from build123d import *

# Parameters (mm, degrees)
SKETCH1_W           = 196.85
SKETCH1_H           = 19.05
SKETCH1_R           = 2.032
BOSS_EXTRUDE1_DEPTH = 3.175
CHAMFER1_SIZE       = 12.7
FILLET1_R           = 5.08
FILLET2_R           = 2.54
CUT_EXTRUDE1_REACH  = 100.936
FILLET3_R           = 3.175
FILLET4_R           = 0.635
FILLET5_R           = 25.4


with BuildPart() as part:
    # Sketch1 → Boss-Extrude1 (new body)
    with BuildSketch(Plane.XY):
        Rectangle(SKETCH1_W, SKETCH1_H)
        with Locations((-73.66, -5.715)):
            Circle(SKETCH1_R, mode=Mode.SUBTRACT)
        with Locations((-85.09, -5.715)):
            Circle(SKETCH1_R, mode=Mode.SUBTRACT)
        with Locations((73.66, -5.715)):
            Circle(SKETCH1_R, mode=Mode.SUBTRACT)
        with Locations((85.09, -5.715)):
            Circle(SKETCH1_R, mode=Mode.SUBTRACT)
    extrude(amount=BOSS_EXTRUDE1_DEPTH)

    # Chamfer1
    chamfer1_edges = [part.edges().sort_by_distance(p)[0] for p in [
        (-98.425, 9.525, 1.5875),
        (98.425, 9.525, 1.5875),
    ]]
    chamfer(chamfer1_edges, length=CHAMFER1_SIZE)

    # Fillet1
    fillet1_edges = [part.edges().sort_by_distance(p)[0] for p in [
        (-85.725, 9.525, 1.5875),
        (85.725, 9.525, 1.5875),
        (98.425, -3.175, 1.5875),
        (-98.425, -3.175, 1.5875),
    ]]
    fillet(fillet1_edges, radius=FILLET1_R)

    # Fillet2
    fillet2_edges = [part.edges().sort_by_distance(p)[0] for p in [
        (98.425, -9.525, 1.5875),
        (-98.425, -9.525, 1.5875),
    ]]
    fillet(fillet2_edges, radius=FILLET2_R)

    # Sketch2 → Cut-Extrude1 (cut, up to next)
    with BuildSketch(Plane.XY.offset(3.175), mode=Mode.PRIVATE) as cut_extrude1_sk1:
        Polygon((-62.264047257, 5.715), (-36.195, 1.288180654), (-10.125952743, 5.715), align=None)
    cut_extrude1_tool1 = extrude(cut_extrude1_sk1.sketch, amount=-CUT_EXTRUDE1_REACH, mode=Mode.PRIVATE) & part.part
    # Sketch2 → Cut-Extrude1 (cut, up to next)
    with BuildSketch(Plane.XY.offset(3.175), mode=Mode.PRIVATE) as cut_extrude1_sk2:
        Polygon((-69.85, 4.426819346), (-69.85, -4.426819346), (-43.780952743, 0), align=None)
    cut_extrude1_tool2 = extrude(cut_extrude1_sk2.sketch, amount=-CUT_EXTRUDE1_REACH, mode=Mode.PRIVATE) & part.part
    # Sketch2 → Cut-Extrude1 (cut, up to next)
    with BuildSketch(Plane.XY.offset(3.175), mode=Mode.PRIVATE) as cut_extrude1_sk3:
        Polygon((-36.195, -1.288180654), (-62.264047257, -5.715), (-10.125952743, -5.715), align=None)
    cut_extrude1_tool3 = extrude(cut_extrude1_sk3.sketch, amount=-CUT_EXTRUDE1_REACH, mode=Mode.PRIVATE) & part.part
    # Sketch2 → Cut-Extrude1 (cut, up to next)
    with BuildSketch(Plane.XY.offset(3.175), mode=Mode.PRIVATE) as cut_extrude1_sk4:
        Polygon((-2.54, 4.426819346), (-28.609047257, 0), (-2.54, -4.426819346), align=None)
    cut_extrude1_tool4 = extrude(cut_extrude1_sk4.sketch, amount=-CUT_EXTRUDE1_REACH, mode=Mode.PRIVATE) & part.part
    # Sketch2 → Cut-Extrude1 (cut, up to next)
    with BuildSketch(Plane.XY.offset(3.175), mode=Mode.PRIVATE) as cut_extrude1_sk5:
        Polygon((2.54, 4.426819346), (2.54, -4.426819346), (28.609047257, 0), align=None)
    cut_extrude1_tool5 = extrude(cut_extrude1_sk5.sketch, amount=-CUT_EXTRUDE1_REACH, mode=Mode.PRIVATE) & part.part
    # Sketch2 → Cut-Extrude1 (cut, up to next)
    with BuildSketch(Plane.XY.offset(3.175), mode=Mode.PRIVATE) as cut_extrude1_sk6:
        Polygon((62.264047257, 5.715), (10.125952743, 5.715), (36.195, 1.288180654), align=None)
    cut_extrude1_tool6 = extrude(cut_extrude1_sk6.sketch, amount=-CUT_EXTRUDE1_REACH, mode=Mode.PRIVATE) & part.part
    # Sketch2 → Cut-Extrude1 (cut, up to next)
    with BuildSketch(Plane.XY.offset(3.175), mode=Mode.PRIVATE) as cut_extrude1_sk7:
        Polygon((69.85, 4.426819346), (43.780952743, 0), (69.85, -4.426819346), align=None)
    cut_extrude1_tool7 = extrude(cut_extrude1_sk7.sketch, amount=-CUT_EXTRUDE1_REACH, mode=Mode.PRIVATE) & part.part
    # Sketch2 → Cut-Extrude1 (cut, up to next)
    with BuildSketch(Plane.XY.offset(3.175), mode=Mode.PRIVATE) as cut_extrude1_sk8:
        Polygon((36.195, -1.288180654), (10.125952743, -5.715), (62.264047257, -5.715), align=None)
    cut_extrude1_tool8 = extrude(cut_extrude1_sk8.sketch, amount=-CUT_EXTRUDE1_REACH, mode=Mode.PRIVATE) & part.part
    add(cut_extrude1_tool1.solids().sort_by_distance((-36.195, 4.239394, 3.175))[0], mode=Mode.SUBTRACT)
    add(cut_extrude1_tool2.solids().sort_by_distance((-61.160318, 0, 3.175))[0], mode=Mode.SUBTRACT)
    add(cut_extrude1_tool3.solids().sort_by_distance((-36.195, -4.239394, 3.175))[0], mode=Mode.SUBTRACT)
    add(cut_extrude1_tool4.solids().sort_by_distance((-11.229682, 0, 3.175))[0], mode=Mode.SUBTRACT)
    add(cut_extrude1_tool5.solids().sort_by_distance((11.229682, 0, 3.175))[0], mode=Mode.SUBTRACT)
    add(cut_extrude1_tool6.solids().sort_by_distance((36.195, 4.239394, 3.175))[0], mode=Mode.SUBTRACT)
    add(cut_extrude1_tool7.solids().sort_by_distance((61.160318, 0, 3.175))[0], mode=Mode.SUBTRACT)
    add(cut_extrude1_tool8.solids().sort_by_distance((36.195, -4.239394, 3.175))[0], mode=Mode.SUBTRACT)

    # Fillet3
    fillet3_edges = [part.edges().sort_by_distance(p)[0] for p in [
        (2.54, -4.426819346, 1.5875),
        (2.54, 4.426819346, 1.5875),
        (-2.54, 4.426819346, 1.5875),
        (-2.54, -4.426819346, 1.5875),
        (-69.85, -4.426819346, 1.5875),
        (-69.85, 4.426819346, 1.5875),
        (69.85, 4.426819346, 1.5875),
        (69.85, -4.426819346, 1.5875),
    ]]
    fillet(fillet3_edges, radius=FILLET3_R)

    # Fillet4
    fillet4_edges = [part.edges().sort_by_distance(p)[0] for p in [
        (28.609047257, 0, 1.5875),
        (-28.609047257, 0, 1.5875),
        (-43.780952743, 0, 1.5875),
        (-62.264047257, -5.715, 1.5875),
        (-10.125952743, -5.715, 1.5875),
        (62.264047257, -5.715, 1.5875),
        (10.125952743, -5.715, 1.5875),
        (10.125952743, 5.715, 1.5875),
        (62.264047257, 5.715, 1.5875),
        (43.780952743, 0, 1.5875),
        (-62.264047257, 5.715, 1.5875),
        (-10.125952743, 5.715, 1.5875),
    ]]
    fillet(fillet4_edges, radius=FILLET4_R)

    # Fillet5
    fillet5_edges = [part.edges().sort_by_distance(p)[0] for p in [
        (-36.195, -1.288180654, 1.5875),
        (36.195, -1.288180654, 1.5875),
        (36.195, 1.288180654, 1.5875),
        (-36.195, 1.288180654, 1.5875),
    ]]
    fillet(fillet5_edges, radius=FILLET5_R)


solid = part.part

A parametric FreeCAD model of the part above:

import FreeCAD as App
import Part
import Sketcher

V = App.Vector
Q = App.Units.Quantity


def edges_at(feature, points):
    """Names of the edges that pass closest to the given points."""
    edges = feature.Shape.Edges
    near = lambda p: min(range(len(edges)), key=lambda i: edges[i].distToShape(Part.Vertex(*p))[0])
    return sorted({f"Edge{near(p) + 1}" for p in points})


def add_polygon(sketch, points):
    """Adds a closed chain of lines whose ends are joined by coincident constraints."""
    first, n = sketch.GeometryCount, len(points)
    for a, b in zip(points, points[1:] + points[:1]):
        sketch.addGeometry(Part.LineSegment(App.Vector(*a, 0), App.Vector(*b, 0)), False)
    for i in range(n):
        sketch.addConstraint(Sketcher.Constraint("Coincident", first + i, 2, first + (i + 1) % n, 1))

doc = App.newDocument("Part")
params = doc.addObject("Spreadsheet::Sheet", "Params")
for row, (alias, value) in enumerate([
    ("sketch1_diameter", "0.16 in"),
    ("sketch1_width", "7.75 in"),
    ("sketch1_height", "0.75 in"),
    ("pad1_length", "0.125 in"),
    ("chamfer_size", "0.5 in"),
    ("fillet_radius", "0.2 in"),
    ("fillet2_radius", "0.1 in"),
    ("fillet3_radius", "0.125 in"),
    ("fillet4_radius", "0.025 in"),
    ("fillet5_radius", "1 in"),
], start=1):
    params.set(f"A{row}", alias)
    params.set(f"B{row}", "=" + value)
    params.setAlias(f"B{row}", alias)

body = doc.addObject("PartDesign::Body", "Body")

sketch1 = body.newObject("Sketcher::SketchObject", "Sketch")
sketch1.AttachmentSupport = (doc.getObject("XY_Plane"), [""])
sketch1.MapMode = "FlatFace"
add_polygon(sketch1, [(-98.4, 9.5), (-98.4, -9.5), (98.4, -9.5), (98.4, 9.5)])
sketch1.addGeometry(Part.Circle(V(-85.1, -5.7, 0), V(0, 0, 1), 2), False)
sketch1.addGeometry(Part.Circle(V(-73.7, -5.7, 0), V(0, 0, 1), 2), False)
sketch1.addGeometry(Part.Circle(V(73.7, -5.7, 0), V(0, 0, 1), 2), False)
sketch1.addGeometry(Part.Circle(V(85.1, -5.7, 0), V(0, 0, 1), 2), False)
sketch1.addConstraint([
    Sketcher.Constraint("Vertical", 0),
    Sketcher.Constraint("Horizontal", 1),
    Sketcher.Constraint("Vertical", 2),
    Sketcher.Constraint("Horizontal", 3),
    Sketcher.Constraint("Equal", 4, 5),
    Sketcher.Constraint("Equal", 5, 6),
    Sketcher.Constraint("Equal", 6, 7),
    Sketcher.Constraint("Symmetric", 0, 2, 2, 2, -1, 1),
    Sketcher.Constraint("Symmetric", 5, 3, 6, 3, -2),
    Sketcher.Constraint("Symmetric", 4, 3, 7, 3, -2),
    Sketcher.Constraint("Horizontal", 4, 3, 5, 3),
    Sketcher.Constraint("Diameter", 4, Q("0.16 in")),
    Sketcher.Constraint("DistanceX", 1, 1, 1, 2, Q("7.75 in")),
    Sketcher.Constraint("DistanceY", 0, 2, 0, 1, Q("0.75 in")),
    Sketcher.Constraint("DistanceX", 5, 3, -1, 1, Q("2.9 in")),
    Sketcher.Constraint("DistanceX", 4, 3, 7, 3, Q("6.7 in")),
    Sketcher.Constraint("DistanceY", 7, 3, 2, 2, Q("0.6 in")),
])
sketch1.setExpression("Constraints[15]", "Params.sketch1_diameter")
sketch1.setExpression("Constraints[16]", "Params.sketch1_width")
sketch1.setExpression("Constraints[17]", "Params.sketch1_height")
pad1 = body.newObject("PartDesign::Pad", "Pad")
pad1.Profile = sketch1
pad1.setExpression("Length", "Params.pad1_length")
doc.recompute()

chamfer = body.newObject("PartDesign::Chamfer", "Chamfer")
chamfer.Base = (pad1, edges_at(pad1, [(-98.425, 9.525, 1.587), (98.425, 9.525, 1.587)]))
chamfer.setExpression("Size", "Params.chamfer_size")
doc.recompute()

fillet = body.newObject("PartDesign::Fillet", "Fillet")
fillet.Base = (chamfer, edges_at(chamfer, [
    (-85.725, 9.525, 1.587),
    (85.725, 9.525, 1.587),
    (98.425, -3.175, 1.587),
    (-98.425, -3.175, 1.587),
]))
fillet.setExpression("Radius", "Params.fillet_radius")
doc.recompute()

fillet2 = body.newObject("PartDesign::Fillet", "Fillet001")
fillet2.Base = (fillet, edges_at(fillet, [(98.425, -9.525, 1.587), (-98.425, -9.525, 1.587)]))
fillet2.setExpression("Radius", "Params.fillet2_radius")

sketch2 = body.newObject("Sketcher::SketchObject", "Sketch001")
sketch2.AttachmentSupport = (doc.getObject("XY_Plane"), [""])
sketch2.MapMode = "FlatFace"
sketch2.AttachmentOffset = App.Placement(V(0, 0, 0.125 * 25.4), App.Rotation())
add_polygon(sketch2, [(-62, 6), (-36, 1), (-10, 6)])
sketch2.addConstraint([
    Sketcher.Constraint("Horizontal", 2),
    Sketcher.Constraint("Equal", 0, 1),
    Sketcher.Constraint("DistanceX", 0, 2, -1, 1, Q("1.425 in")),
    Sketcher.Constraint("DistanceY", -1, 1, 1, 2, Q("0.225 in")),
    Sketcher.Constraint("Distance", 0, 26.442238),
    Sketcher.Constraint("DistanceX", 2, 2, 2, 1, 52.138095),
])
pocket1 = body.newObject("PartDesign::Pocket", "Pocket")
pocket1.Profile = sketch2
pocket1.Type = "UpToFirst"

sketch3 = body.newObject("Sketcher::SketchObject", "Sketch002")
sketch3.AttachmentSupport = (doc.getObject("XY_Plane"), [""])
sketch3.MapMode = "FlatFace"
sketch3.AttachmentOffset = App.Placement(V(0, 0, 0.125 * 25.4), App.Rotation())
add_polygon(sketch3, [(-70, 4), (-70, -4), (-44, 0)])
sketch3.addConstraint([
    Sketcher.Constraint("Vertical", 0),
    Sketcher.Constraint("PointOnObject", 1, 2, -1),
    Sketcher.Constraint("Equal", 1, 2),
    Sketcher.Constraint("DistanceX", 0, 2, -1, 1, Q("2.75 in")),
    Sketcher.Constraint("DistanceY", 0, 2, 0, 1, 8.853639),
    Sketcher.Constraint("Distance", 1, 26.442238),
])
pocket2 = body.newObject("PartDesign::Pocket", "Pocket001")
pocket2.Profile = sketch3
pocket2.Type = "UpToFirst"

sketch4 = body.newObject("Sketcher::SketchObject", "Sketch003")
sketch4.AttachmentSupport = (doc.getObject("XY_Plane"), [""])
sketch4.MapMode = "FlatFace"
sketch4.AttachmentOffset = App.Placement(V(0, 0, 0.125 * 25.4), App.Rotation())
add_polygon(sketch4, [(-36, -1), (-62, -6), (-10, -6)])
sketch4.addConstraint([
    Sketcher.Constraint("Horizontal", 1),
    Sketcher.Constraint("Equal", 0, 2),
    Sketcher.Constraint("DistanceY", 0, 2, -1, 1, Q("0.225 in")),
    Sketcher.Constraint("DistanceX", 2, 2, -1, 1, Q("1.425 in")),
    Sketcher.Constraint("Distance", 0, 26.442238),
    Sketcher.Constraint("DistanceX", 1, 1, 1, 2, 52.138095),
])
pocket3 = body.newObject("PartDesign::Pocket", "Pocket002")
pocket3.Profile = sketch4
pocket3.Type = "UpToFirst"

sketch5 = body.newObject("Sketcher::SketchObject", "Sketch004")
sketch5.AttachmentSupport = (doc.getObject("XY_Plane"), [""])
sketch5.MapMode = "FlatFace"
sketch5.AttachmentOffset = App.Placement(V(0, 0, 0.125 * 25.4), App.Rotation())
add_polygon(sketch5, [(-3, 4), (-29, 0), (-3, -4)])
sketch5.addConstraint([
    Sketcher.Constraint("Vertical", 2),
    Sketcher.Constraint("PointOnObject", 0, 2, -1),
    Sketcher.Constraint("Equal", 0, 1),
    Sketcher.Constraint("DistanceX", 1, 2, -1, 1, Q("0.1 in")),
    Sketcher.Constraint("DistanceY", 2, 1, 2, 2, 8.853639),
    Sketcher.Constraint("Distance", 0, 26.442238),
])
pocket4 = body.newObject("PartDesign::Pocket", "Pocket003")
pocket4.Profile = sketch5
pocket4.Type = "UpToFirst"

sketch6 = body.newObject("Sketcher::SketchObject", "Sketch005")
sketch6.AttachmentSupport = (doc.getObject("XY_Plane"), [""])
sketch6.MapMode = "FlatFace"
sketch6.AttachmentOffset = App.Placement(V(0, 0, 0.125 * 25.4), App.Rotation())
add_polygon(sketch6, [(3, 4), (3, -4), (29, 0)])
sketch6.addConstraint([
    Sketcher.Constraint("Vertical", 0),
    Sketcher.Constraint("PointOnObject", 1, 2, -1),
    Sketcher.Constraint("Equal", 1, 2),
    Sketcher.Constraint("DistanceX", -1, 1, 0, 2, Q("0.1 in")),
    Sketcher.Constraint("DistanceY", 0, 2, 0, 1, 8.853639),
    Sketcher.Constraint("Distance", 1, 26.442238),
])
pocket5 = body.newObject("PartDesign::Pocket", "Pocket004")
pocket5.Profile = sketch6
pocket5.Type = "UpToFirst"

sketch7 = body.newObject("Sketcher::SketchObject", "Sketch006")
sketch7.AttachmentSupport = (doc.getObject("XY_Plane"), [""])
sketch7.MapMode = "FlatFace"
sketch7.AttachmentOffset = App.Placement(V(0, 0, 0.125 * 25.4), App.Rotation())
add_polygon(sketch7, [(62, 6), (10, 6), (36, 1)])
sketch7.addConstraint([
    Sketcher.Constraint("Horizontal", 0),
    Sketcher.Constraint("Equal", 1, 2),
    Sketcher.Constraint("DistanceY", -1, 1, 0, 2, Q("0.225 in")),
    Sketcher.Constraint("DistanceX", -1, 1, 1, 2, Q("1.425 in")),
    Sketcher.Constraint("Distance", 1, 26.442238),
    Sketcher.Constraint("DistanceX", 0, 2, 0, 1, 52.138095),
])
pocket6 = body.newObject("PartDesign::Pocket", "Pocket005")
pocket6.Profile = sketch7
pocket6.Type = "UpToFirst"

sketch8 = body.newObject("Sketcher::SketchObject", "Sketch007")
sketch8.AttachmentSupport = (doc.getObject("XY_Plane"), [""])
sketch8.MapMode = "FlatFace"
sketch8.AttachmentOffset = App.Placement(V(0, 0, 0.125 * 25.4), App.Rotation())
add_polygon(sketch8, [(70, 4), (44, 0), (70, -4)])
sketch8.addConstraint([
    Sketcher.Constraint("Vertical", 2),
    Sketcher.Constraint("PointOnObject", 0, 2, -1),
    Sketcher.Constraint("Equal", 0, 1),
    Sketcher.Constraint("DistanceX", -1, 1, 1, 2, Q("2.75 in")),
    Sketcher.Constraint("DistanceY", 2, 1, 2, 2, 8.853639),
    Sketcher.Constraint("Distance", 0, 26.442238),
])
pocket7 = body.newObject("PartDesign::Pocket", "Pocket006")
pocket7.Profile = sketch8
pocket7.Type = "UpToFirst"

sketch9 = body.newObject("Sketcher::SketchObject", "Sketch008")
sketch9.AttachmentSupport = (doc.getObject("XY_Plane"), [""])
sketch9.MapMode = "FlatFace"
sketch9.AttachmentOffset = App.Placement(V(0, 0, 0.125 * 25.4), App.Rotation())
add_polygon(sketch9, [(36, -1), (10, -6), (62, -6)])
sketch9.addConstraint([
    Sketcher.Constraint("Horizontal", 1),
    Sketcher.Constraint("Equal", 0, 2),
    Sketcher.Constraint("DistanceY", 0, 2, -1, 1, Q("0.225 in")),
    Sketcher.Constraint("DistanceX", -1, 1, 2, 2, Q("1.425 in")),
    Sketcher.Constraint("Distance", 0, 26.442238),
    Sketcher.Constraint("DistanceX", 1, 1, 1, 2, 52.138095),
])
pocket8 = body.newObject("PartDesign::Pocket", "Pocket007")
pocket8.Profile = sketch9
pocket8.Type = "UpToFirst"
doc.recompute()

fillet3 = body.newObject("PartDesign::Fillet", "Fillet002")
fillet3.Base = (pocket8, edges_at(pocket8, [
    (2.54, -4.427, 1.587),
    (2.54, 4.427, 1.587),
    (-2.54, 4.427, 1.587),
    (-2.54, -4.427, 1.587),
    (-69.85, -4.427, 1.587),
    (-69.85, 4.427, 1.587),
    (69.85, 4.427, 1.587),
    (69.85, -4.427, 1.587),
]))
fillet3.setExpression("Radius", "Params.fillet3_radius")
doc.recompute()

fillet4 = body.newObject("PartDesign::Fillet", "Fillet003")
fillet4.Base = (fillet3, edges_at(fillet3, [
    (28.609, 0, 1.587),
    (-28.609, 0, 1.587),
    (-43.781, 0, 1.587),
    (-62.264, -5.715, 1.587),
    (-10.126, -5.715, 1.587),
    (62.264, -5.715, 1.587),
    (10.126, -5.715, 1.587),
    (10.126, 5.715, 1.587),
    (62.264, 5.715, 1.587),
    (43.781, 0, 1.587),
    (-62.264, 5.715, 1.587),
    (-10.126, 5.715, 1.587),
]))
fillet4.setExpression("Radius", "Params.fillet4_radius")
doc.recompute()

fillet5 = body.newObject("PartDesign::Fillet", "Fillet004")
fillet5.Base = (fillet4, edges_at(fillet4, [
    (-36.195, -1.288, 1.587),
    (36.195, -1.288, 1.587),
    (36.195, 1.288, 1.587),
    (-36.195, 1.288, 1.587),
]))
fillet5.setExpression("Radius", "Params.fillet5_radius")

doc.recompute()
